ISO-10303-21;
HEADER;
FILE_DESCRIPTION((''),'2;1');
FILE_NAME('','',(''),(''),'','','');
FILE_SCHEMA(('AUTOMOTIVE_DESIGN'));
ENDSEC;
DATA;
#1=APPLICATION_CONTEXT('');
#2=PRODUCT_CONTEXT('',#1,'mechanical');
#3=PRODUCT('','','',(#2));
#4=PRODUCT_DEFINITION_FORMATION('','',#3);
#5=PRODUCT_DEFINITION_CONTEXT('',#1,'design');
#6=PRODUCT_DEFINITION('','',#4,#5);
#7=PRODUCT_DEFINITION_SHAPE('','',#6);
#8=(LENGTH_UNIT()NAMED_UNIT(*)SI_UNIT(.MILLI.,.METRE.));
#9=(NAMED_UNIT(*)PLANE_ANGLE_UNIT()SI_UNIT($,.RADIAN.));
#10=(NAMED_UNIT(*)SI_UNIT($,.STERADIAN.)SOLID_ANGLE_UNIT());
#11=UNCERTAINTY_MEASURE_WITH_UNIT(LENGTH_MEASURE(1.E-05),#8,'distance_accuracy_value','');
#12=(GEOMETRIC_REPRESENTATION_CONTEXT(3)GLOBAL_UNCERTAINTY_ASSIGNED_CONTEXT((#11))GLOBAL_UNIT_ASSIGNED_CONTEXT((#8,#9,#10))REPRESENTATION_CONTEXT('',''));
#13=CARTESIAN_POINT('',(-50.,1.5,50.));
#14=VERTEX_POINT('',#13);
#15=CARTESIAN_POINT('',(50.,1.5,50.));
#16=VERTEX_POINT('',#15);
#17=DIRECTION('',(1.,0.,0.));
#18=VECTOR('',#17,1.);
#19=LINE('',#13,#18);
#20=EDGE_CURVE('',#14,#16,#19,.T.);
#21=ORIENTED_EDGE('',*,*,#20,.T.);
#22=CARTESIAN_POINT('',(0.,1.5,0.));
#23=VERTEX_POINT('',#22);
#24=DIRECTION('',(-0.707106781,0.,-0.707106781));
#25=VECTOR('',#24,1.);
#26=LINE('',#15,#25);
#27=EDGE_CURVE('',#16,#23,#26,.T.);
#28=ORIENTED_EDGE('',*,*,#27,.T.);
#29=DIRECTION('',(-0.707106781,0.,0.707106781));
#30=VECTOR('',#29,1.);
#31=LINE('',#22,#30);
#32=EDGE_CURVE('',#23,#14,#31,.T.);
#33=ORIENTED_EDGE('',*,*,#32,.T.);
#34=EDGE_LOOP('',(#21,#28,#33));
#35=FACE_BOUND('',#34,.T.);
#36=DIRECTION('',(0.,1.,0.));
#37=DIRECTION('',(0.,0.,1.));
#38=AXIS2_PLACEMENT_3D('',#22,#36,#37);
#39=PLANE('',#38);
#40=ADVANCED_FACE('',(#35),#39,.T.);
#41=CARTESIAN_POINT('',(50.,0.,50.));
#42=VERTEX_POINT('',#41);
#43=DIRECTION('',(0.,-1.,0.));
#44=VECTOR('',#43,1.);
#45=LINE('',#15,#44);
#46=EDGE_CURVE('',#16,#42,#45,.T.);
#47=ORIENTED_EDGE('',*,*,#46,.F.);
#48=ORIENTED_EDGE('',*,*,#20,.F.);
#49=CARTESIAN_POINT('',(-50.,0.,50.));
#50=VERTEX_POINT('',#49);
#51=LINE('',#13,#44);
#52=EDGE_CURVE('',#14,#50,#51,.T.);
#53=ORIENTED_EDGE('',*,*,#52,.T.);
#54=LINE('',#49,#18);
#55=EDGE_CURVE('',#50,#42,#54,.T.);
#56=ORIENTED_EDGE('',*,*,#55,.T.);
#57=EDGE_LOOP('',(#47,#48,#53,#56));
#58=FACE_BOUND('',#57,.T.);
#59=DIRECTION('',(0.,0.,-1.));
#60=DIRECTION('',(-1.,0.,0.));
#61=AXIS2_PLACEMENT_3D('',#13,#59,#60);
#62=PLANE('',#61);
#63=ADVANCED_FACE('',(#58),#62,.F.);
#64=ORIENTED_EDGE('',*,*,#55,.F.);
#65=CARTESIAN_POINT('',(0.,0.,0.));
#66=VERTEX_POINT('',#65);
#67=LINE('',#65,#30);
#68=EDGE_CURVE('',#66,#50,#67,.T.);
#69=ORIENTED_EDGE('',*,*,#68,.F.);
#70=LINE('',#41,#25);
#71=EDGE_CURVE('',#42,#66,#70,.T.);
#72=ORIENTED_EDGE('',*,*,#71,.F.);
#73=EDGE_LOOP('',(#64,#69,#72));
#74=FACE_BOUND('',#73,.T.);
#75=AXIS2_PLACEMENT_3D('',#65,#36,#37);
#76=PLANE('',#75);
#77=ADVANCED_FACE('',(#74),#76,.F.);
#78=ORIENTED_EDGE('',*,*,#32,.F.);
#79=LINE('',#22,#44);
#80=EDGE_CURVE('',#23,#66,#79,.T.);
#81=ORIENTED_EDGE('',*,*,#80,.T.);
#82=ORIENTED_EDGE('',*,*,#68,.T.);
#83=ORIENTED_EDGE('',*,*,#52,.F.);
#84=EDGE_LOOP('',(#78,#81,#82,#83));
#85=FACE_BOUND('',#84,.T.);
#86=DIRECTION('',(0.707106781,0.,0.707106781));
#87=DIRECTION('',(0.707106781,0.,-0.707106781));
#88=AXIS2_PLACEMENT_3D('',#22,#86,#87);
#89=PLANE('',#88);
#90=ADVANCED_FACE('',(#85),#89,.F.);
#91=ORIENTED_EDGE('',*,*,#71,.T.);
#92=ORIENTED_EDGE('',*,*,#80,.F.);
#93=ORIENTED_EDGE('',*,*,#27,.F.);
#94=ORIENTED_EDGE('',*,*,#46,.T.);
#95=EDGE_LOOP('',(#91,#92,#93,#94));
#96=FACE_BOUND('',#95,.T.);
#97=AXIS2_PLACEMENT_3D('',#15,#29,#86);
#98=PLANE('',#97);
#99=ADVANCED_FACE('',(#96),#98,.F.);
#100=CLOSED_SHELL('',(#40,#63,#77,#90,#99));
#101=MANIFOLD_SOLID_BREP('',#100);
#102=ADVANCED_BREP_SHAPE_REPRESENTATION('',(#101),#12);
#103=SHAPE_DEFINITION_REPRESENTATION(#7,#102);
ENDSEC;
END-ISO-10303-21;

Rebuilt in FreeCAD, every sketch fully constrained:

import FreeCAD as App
import Part
import Sketcher
from FreeCAD import Vector
Q = App.Units.Quantity


def add_polygon(sketch, points):
    """Adds a closed chain of lines whose ends are joined by coincident constraints."""
    first, n = sketch.GeometryCount, len(points)
    for a, b in zip(points, points[1:] + points[:1]):
        sketch.addGeometry(Part.LineSegment(App.Vector(*a, 0), App.Vector(*b, 0)), False)
    for i in range(n):
        sketch.addConstraint(Sketcher.Constraint("Coincident", first + i, 2, first + (i + 1) % n, 1))

doc = App.newDocument("Part")
params = doc.addObject("Spreadsheet::Sheet", "Params")
for row, (alias, value) in enumerate([
    ("sketch1_width", "100 mm"),
    ("pad1_length", "1.5 mm"),
], start=1):
    params.set(f"A{row}", alias)
    params.set(f"B{row}", "=" + value)
    params.setAlias(f"B{row}", alias)

body = doc.addObject("PartDesign::Body", "Body")

sketch1 = body.newObject("Sketcher::SketchObject", "Sketch")
sketch1.AttachmentSupport = (doc.getObject("XZ_Plane"), [""])
sketch1.MapMode = "FlatFace"
add_polygon(sketch1, [(0, 0), (-50, 50), (50, 50)])
sketch1.addConstraint([
    Sketcher.Constraint("Horizontal", 1),
    Sketcher.Constraint("Coincident", 2, 2, -1, 1),
    Sketcher.Constraint("Perpendicular", 0, 2),
    Sketcher.Constraint("Equal", 0, 2),
    Sketcher.Constraint("DistanceX", 1, 1, 1, 2, Q("100 mm")),
])
sketch1.setExpression("Constraints[7]", "Params.sketch1_width")
pad1 = body.newObject("PartDesign::Pad", "Pad")
pad1.Profile = sketch1
pad1.setExpression("Length", "Params.pad1_length")
pad1.Reversed = True

doc.recompute()
